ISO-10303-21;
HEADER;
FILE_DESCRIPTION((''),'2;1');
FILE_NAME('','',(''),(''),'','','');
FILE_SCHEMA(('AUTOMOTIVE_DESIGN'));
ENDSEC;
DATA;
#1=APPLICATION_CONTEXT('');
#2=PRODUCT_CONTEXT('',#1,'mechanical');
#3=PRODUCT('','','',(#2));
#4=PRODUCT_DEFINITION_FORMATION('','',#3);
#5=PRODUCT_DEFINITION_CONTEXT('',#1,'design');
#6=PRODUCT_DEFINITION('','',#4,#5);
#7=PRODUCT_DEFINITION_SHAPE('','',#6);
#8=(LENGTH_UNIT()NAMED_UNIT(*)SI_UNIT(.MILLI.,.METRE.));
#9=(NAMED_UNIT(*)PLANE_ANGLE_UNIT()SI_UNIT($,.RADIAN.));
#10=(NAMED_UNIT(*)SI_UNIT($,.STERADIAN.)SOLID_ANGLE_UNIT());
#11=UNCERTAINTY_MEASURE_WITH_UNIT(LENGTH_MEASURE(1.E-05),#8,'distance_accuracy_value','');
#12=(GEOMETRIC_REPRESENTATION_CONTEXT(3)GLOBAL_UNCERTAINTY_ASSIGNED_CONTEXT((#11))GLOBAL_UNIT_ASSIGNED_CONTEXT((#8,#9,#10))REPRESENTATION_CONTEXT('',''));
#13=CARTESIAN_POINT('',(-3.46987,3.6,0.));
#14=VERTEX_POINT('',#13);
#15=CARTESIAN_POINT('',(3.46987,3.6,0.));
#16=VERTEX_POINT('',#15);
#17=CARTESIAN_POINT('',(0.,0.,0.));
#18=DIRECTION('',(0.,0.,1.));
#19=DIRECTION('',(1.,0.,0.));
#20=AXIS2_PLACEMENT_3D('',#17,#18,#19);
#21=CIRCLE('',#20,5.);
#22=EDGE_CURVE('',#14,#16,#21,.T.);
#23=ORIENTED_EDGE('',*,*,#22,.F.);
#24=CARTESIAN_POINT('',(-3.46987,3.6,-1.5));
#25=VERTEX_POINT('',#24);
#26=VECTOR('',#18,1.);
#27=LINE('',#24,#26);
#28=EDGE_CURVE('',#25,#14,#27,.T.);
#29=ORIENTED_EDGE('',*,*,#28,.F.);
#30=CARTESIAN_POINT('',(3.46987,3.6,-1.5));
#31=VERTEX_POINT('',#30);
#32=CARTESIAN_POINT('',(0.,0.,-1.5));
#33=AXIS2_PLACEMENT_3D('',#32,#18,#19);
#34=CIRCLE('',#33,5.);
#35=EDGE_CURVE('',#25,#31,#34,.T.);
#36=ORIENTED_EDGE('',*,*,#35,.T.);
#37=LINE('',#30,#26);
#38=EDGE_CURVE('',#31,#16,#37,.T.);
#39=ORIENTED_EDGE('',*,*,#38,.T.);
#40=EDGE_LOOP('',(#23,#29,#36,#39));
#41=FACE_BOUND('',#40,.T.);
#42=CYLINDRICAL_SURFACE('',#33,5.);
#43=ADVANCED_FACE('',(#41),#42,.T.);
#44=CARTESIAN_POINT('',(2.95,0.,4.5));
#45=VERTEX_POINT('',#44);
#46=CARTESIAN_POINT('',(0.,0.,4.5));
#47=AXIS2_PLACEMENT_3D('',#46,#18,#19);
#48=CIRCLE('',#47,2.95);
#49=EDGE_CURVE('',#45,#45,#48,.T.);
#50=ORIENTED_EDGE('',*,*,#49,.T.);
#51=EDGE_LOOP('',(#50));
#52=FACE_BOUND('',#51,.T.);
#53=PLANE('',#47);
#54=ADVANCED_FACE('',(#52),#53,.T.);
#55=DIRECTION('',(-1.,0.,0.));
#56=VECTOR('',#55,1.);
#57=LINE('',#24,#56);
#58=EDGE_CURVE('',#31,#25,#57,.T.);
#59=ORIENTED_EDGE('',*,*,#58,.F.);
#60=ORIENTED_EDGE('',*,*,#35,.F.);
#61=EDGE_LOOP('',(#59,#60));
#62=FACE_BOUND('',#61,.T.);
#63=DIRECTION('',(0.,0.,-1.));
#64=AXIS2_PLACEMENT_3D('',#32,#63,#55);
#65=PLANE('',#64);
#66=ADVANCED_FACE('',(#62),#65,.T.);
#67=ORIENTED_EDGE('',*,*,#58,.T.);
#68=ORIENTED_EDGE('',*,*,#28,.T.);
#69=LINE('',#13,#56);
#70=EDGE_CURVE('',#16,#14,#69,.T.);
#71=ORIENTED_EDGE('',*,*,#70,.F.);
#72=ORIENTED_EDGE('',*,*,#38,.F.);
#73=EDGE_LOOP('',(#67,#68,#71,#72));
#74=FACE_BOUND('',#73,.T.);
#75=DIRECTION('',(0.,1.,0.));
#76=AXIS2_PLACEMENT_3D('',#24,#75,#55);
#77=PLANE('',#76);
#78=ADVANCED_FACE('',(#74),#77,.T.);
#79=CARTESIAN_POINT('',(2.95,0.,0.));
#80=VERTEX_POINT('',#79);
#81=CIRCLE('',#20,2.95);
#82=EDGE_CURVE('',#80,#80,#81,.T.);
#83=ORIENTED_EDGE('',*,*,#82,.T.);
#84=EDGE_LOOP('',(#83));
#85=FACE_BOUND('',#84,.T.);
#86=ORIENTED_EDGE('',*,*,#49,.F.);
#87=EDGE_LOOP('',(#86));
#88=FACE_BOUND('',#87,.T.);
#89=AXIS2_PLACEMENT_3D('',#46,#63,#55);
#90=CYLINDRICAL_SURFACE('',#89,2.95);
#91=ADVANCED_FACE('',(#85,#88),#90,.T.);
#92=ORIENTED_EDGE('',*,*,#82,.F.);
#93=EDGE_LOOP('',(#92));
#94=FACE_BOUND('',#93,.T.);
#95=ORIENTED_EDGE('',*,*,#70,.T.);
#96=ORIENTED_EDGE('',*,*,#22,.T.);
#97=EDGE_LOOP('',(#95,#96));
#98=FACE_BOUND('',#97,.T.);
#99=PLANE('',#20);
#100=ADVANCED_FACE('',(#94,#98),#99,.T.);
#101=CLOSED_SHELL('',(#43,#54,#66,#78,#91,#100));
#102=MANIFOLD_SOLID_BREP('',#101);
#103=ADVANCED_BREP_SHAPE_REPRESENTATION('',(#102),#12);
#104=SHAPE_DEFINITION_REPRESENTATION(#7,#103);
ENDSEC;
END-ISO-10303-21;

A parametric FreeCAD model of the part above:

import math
import FreeCAD as App
import Part
import Sketcher
from FreeCAD import Vector
Q = App.Units.Quantity

doc = App.newDocument("Part")
body = doc.addObject("PartDesign::Body", "Body")

# Sketch on XY plane
sketch1 = doc.addObject("Sketcher::SketchObject", "Sketch")
body.addObject(sketch1)
sketch1.AttachmentSupport = (doc.XY_Plane, [""])
sketch1.MapMode = "FlatFace"
sketch1.addGeometry(Part.Circle(Vector(0, 0, 0), Vector(0, 0, 1), 2.95), False)
sketch1.addConstraint([
    Sketcher.Constraint("Coincident", 0, 3, -1, 1),
    Sketcher.Constraint("Diameter", 0, Q("5.9 mm")),
])
pad1 = doc.addObject("PartDesign::Pad", "Pad")
body.addObject(pad1)
pad1.Profile = sketch1
pad1.Length = 4.5
body2 = doc.addObject("PartDesign::Body", "Body001")

# Sketch on XY plane
sketch2 = doc.addObject("Sketcher::SketchObject", "Sketch001")
body2.addObject(sketch2)
sketch2.AttachmentSupport = (doc.getObject("XY_Plane001"), [""])
sketch2.MapMode = "FlatFace"
sketch2.addGeometry([
    Part.LineSegment(Vector(3.46987, 3.6, 0), Vector(-3.46987, 3.6, 0)),
    Part.ArcOfCircle(Part.Circle(Vector(0, 0, 0), Vector(0, 0, 1), 5), math.radians(133.94552), math.radians(406.05448)),
    Part.Circle(Vector(0, 0, 0), Vector(0, 0, 1), 2.95),
], False)
sketch2.addConstraint([
    Sketcher.Constraint("Coincident", 0, 1, 1, 2),
    Sketcher.Constraint("Coincident", 1, 1, 0, 2),
    Sketcher.Constraint("Horizontal", 0),
    Sketcher.Constraint("Coincident", 1, 3, -1, 1),
    Sketcher.Constraint("Coincident", 2, 3, -1, 1),
    Sketcher.Constraint("Radius", 1, Q("5 mm")),
    Sketcher.Constraint("Diameter", 2, Q("5.9 mm")),
    Sketcher.Constraint("DistanceY", -1, 1, 0, 1, Q("3.6 mm")),
])
pad2 = doc.addObject("PartDesign::Pad", "Pad001")
body2.addObject(pad2)
pad2.Profile = sketch2
pad2.Length = 1.5
pad2.Reversed = True
body.AllowCompound = True
doc.recompute()

boolean = doc.addObject("PartDesign::Boolean", "Boolean")
body.addObject(boolean)
boolean.Type = "Fuse"
boolean.addObjects([body2])

# Sketch on XY plane
sketch3 = doc.addObject("Sketcher::SketchObject", "Sketch002")
body.addObject(sketch3)
sketch3.AttachmentSupport = (doc.XY_Plane, [""])
sketch3.MapMode = "FlatFace"
sketch3.AttachmentOffset = App.Placement(Vector(0, 0, -1.5), App.Rotation())
sketch3.addGeometry(Part.Circle(Vector(0, 0, 0), Vector(0, 0, 1), 2.95), False)
sketch3.addConstraint([
    Sketcher.Constraint("Coincident", 0, 3, -1, 1),
    Sketcher.Constraint("Diameter", 0, Q("5.9 mm")),
])
pad3 = doc.addObject("PartDesign::Pad", "Pad002")
body.addObject(pad3)
pad3.Profile = sketch3
pad3.Length = 1.5

doc.recompute()
